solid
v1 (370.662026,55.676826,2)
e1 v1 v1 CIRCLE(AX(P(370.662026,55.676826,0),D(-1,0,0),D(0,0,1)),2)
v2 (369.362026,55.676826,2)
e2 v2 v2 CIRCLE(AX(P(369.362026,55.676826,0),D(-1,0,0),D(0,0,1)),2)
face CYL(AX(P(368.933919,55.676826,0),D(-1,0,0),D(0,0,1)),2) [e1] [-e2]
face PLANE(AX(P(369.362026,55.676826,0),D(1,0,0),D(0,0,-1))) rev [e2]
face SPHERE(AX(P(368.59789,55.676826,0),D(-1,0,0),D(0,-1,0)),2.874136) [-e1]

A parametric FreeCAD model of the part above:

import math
import FreeCAD as App
import Part
import Sketcher
Q = App.Units.Quantity

doc = App.newDocument("Part")
params = doc.addObject("Spreadsheet::Sheet", "Params")
for row, (alias, value) in enumerate([
    ("sketch1_height", "2 mm"),
    ("sketch1_width", "1.3 mm"),
    ("sketch1_width2", "2.11 mm"),
    ("revolution_angle", "360 deg"),
], start=1):
    params.set(f"A{row}", alias)
    params.set(f"B{row}", "=" + value)
    params.setAlias(f"B{row}", alias)

body = doc.addObject("PartDesign::Body", "Body")

# Sketch on XY plane
sketch1 = doc.addObject("Sketcher::SketchObject", "Sketch")
body.addObject(sketch1)
sketch1.AttachmentSupport = (doc.XY_Plane, [""])
sketch1.MapMode = "FlatFace"
sketch1.addGeometry([
    Part.LineSegment(App.Vector(369.4, 57.7, 0), App.Vector(369.4, 55.7, 0)),
    Part.LineSegment(App.Vector(369.4, 55.7, 0), App.Vector(371.5, 55.7, 0)),
    Part.ArcOfCircle(Part.Circle(App.Vector(368.6, 55.7, 0), App.Vector(0, 0, 1), 2.9), math.radians(0), math.radians(44)),
    Part.LineSegment(App.Vector(370.7, 57.7, 0), App.Vector(369.4, 57.7, 0)),
], False)
sketch1.addGeometry(Part.LineSegment(App.Vector(368.6, 55.7, 0), App.Vector(371.5, 55.7, 0)), True)  # axis
sketch1.addConstraint([
    Sketcher.Constraint("Coincident", 0, 2, 1, 1),
    Sketcher.Constraint("Coincident", 1, 2, 2, 1),
    Sketcher.Constraint("Coincident", 2, 2, 3, 1),
    Sketcher.Constraint("Coincident", 3, 2, 0, 1),
    Sketcher.Constraint("Vertical", 0),
    Sketcher.Constraint("Horizontal", 1),
    Sketcher.Constraint("Horizontal", 3),
    Sketcher.Constraint("Horizontal", 4),
    Sketcher.Constraint("Coincident", 4, 1, 2, 3),
    Sketcher.Constraint("Coincident", 4, 2, 1, 2),
    Sketcher.Constraint("DistanceY", 0, 2, 0, 1, Q("2 mm")),
    Sketcher.Constraint("DistanceX", 3, 2, 3, 1, Q("1.3 mm")),
    Sketcher.Constraint("DistanceX", 1, 1, 1, 2, Q("2.11 mm")),
    Sketcher.Constraint("DistanceX", -1, 1, 2, 3, Q("368.59789 mm")),
    Sketcher.Constraint("DistanceY", -1, 1, 2, 3, Q("55.676826 mm")),
])
sketch1.setExpression("Constraints[10]", "Params.sketch1_height")
sketch1.setExpression("Constraints[11]", "Params.sketch1_width")
sketch1.setExpression("Constraints[12]", "Params.sketch1_width2")
revolution = doc.addObject("PartDesign::Revolution", "Revolution")
body.addObject(revolution)
revolution.Profile = sketch1
revolution.ReferenceAxis = (sketch1, ["Axis0"])
revolution.setExpression("Angle", "Params.revolution_angle")

doc.recompute()
